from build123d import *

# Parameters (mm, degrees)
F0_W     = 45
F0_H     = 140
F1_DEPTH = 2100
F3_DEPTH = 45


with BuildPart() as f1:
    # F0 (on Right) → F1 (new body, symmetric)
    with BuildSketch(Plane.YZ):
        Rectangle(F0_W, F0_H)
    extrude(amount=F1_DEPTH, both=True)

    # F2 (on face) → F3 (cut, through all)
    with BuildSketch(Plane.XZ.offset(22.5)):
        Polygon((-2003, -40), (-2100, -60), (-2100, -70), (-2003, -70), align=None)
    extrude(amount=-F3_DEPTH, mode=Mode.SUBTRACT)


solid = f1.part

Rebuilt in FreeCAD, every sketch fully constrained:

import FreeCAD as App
import Part
import Sketcher
Q = App.Units.Quantity

doc = App.newDocument("Part")
body = doc.addObject("PartDesign::Body", "Body")

# Sketch on YZ plane
sketch1 = body.newObject("Sketcher::SketchObject", "Sketch")
sketch1.AttachmentSupport = (doc.getObject("YZ_Plane"), [""])
sketch1.MapMode = "FlatFace"
sketch1.addGeometry([
    Part.LineSegment(App.Vector(-22, 70, 0), App.Vector(-22, -70, 0)),
    Part.LineSegment(App.Vector(-22, -70, 0), App.Vector(22, -70, 0)),
    Part.LineSegment(App.Vector(22, -70, 0), App.Vector(22, 70, 0)),
    Part.LineSegment(App.Vector(22, 70, 0), App.Vector(-22, 70, 0)),
], False)
sketch1.addConstraint([
    Sketcher.Constraint("Coincident", 0, 2, 1, 1),
    Sketcher.Constraint("Coincident", 1, 2, 2, 1),
    Sketcher.Constraint("Coincident", 2, 2, 3, 1),
    Sketcher.Constraint("Coincident", 3, 2, 0, 1),
    Sketcher.Constraint("Vertical", 0),
    Sketcher.Constraint("Horizontal", 1),
    Sketcher.Constraint("Vertical", 2),
    Sketcher.Constraint("Horizontal", 3),
    Sketcher.Constraint("Symmetric", 0, 2, 2, 2, -1, 1),
    Sketcher.Constraint("DistanceX", 1, 1, 1, 2, Q("45 mm")),
    Sketcher.Constraint("DistanceY", 0, 2, 0, 1, Q("140 mm")),
])
pad1 = body.newObject("PartDesign::Pad", "Pad")
pad1.Profile = sketch1
pad1.Length = 4200
pad1.Midplane = True

# Sketch on XZ plane
sketch2 = body.newObject("Sketcher::SketchObject", "Sketch001")
sketch2.AttachmentSupport = (doc.getObject("XZ_Plane"), [""])
sketch2.MapMode = "FlatFace"
sketch2.AttachmentOffset = App.Placement(App.Vector(0, 0, 22.5), App.Rotation())
sketch2.addGeometry([
    Part.LineSegment(App.Vector(-2003, -40, 0), App.Vector(-2100, -60, 0)),
    Part.LineSegment(App.Vector(-2100, -60, 0), App.Vector(-2100, -70, 0)),
    Part.LineSegment(App.Vector(-2100, -70, 0), App.Vector(-2003, -70, 0)),
    Part.LineSegment(App.Vector(-2003, -70, 0), App.Vector(-2003, -40, 0)),
], False)
sketch2.addConstraint([
    Sketcher.Constraint("Coincident", 0, 2, 1, 1),
    Sketcher.Constraint("Coincident", 1, 2, 2, 1),
    Sketcher.Constraint("Coincident", 2, 2, 3, 1),
    Sketcher.Constraint("Coincident", 3, 2, 0, 1),
    Sketcher.Constraint("Vertical", 1),
    Sketcher.Constraint("Horizontal", 2),
    Sketcher.Constraint("Vertical", 3),
    Sketcher.Constraint("DistanceX", 2, 1, 2, 2, Q("97 mm")),
    Sketcher.Constraint("DistanceY", 1, 2, 1, 1, Q("10 mm")),
    Sketcher.Constraint("DistanceY", 3, 1, 3, 2, Q("30 mm")),
    Sketcher.Constraint("DistanceX", 0, 2, -1, 1, Q("2100 mm")),
    Sketcher.Constraint("DistanceY", 0, 2, -1, 1, Q("60 mm")),
])
pocket1 = body.newObject("PartDesign::Pocket", "Pocket")
pocket1.Profile = sketch2
pocket1.Type = "ThroughAll"

doc.recompute()
